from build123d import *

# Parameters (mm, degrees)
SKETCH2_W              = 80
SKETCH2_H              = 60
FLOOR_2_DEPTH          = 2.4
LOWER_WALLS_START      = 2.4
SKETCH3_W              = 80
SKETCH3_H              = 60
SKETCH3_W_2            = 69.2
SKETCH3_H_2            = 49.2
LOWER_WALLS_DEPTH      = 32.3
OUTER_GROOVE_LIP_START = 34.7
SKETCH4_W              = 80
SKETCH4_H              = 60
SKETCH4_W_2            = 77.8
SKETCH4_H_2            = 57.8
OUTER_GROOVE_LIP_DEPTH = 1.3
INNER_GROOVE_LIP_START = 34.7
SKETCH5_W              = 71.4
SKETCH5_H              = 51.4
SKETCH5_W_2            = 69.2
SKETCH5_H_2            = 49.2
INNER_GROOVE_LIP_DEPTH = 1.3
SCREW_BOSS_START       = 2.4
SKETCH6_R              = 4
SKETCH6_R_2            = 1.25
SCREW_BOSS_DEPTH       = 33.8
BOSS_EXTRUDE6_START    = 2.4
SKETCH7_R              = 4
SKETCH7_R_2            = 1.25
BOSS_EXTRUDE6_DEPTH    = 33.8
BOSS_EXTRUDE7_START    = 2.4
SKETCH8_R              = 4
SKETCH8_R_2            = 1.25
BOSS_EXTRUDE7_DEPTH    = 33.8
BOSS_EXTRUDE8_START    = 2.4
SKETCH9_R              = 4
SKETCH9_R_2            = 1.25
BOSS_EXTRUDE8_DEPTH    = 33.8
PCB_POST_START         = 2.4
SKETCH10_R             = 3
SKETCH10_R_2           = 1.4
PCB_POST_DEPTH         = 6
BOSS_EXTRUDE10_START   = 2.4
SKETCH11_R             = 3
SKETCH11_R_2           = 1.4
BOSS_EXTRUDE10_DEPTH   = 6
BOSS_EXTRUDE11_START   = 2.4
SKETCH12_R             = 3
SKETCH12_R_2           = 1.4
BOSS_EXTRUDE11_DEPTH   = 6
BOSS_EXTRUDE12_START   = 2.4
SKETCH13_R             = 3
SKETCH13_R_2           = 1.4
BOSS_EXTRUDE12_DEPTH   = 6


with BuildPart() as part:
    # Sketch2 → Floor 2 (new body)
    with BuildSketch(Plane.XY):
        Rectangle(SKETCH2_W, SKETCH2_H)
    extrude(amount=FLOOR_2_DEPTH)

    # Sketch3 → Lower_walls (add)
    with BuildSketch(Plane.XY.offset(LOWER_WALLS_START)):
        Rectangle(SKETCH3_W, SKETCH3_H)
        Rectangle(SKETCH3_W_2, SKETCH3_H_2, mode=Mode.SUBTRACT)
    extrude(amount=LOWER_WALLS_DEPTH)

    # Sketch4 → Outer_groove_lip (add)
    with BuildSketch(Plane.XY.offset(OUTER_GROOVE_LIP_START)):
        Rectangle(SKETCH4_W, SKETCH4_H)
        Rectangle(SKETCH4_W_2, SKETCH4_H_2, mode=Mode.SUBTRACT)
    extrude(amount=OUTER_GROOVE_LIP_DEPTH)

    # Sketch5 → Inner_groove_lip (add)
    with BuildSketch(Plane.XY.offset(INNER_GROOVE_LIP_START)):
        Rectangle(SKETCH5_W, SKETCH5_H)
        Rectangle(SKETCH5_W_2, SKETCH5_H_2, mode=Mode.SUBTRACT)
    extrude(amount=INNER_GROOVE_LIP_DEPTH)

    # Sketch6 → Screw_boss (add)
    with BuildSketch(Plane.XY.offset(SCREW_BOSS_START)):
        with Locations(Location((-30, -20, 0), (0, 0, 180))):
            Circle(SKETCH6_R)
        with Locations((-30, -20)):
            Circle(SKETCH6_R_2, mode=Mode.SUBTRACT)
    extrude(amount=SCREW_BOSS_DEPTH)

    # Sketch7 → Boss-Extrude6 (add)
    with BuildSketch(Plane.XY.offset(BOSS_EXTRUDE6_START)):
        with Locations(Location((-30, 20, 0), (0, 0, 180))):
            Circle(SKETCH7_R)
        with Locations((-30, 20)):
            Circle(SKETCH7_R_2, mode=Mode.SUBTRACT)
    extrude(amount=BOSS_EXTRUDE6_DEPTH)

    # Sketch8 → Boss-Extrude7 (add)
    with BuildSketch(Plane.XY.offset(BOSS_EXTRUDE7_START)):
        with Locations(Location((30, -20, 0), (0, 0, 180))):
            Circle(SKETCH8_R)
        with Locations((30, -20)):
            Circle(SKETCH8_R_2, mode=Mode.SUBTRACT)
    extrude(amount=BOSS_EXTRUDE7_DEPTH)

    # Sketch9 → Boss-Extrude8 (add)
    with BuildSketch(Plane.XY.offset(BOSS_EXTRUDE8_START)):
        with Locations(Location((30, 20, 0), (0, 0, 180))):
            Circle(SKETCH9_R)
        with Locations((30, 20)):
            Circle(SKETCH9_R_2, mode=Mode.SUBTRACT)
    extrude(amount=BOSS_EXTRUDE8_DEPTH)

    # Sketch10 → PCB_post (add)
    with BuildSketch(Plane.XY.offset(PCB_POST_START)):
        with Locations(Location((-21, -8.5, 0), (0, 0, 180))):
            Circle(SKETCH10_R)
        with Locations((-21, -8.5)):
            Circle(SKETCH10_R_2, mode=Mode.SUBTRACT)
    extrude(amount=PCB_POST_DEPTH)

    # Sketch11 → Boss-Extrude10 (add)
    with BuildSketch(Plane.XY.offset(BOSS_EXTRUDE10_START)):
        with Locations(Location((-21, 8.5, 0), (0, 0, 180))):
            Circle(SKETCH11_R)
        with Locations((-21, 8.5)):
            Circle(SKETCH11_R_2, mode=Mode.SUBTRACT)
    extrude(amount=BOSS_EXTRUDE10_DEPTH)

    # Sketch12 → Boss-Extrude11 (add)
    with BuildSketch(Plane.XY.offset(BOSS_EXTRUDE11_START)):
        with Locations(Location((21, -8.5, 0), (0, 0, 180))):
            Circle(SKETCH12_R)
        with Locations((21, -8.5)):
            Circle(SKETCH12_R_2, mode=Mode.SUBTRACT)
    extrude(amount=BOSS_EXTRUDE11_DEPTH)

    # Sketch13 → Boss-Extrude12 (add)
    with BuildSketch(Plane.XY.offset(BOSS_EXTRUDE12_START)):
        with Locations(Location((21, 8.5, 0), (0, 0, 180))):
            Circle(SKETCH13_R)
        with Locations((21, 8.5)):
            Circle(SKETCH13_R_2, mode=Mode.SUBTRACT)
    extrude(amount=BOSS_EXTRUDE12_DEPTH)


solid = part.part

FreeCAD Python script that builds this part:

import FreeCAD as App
import Part
import Sketcher

doc = App.newDocument("Part")
body = doc.addObject("PartDesign::Body", "Body")

# Sketch on XY plane
sketch1 = body.newObject("Sketcher::SketchObject", "Sketch")
sketch1.AttachmentSupport = (doc.getObject("XY_Plane"), [""])
sketch1.MapMode = "FlatFace"
sketch1.addGeometry([
    Part.LineSegment(App.Vector(-40, 30, 0), App.Vector(-40, -30, 0)),
    Part.LineSegment(App.Vector(-40, -30, 0), App.Vector(40, -30, 0)),
    Part.LineSegment(App.Vector(40, -30, 0), App.Vector(40, 30, 0)),
    Part.LineSegment(App.Vector(40, 30, 0), App.Vector(-40, 30, 0)),
], False)
sketch1.addConstraint([
    Sketcher.Constraint("Coincident", 0, 2, 1, 1),
    Sketcher.Constraint("Coincident", 1, 2, 2, 1),
    Sketcher.Constraint("Coincident", 2, 2, 3, 1),
    Sketcher.Constraint("Coincident", 3, 2, 0, 1),
    Sketcher.Constraint("Vertical", 0),
    Sketcher.Constraint("Horizontal", 1),
    Sketcher.Constraint("Vertical", 2),
    Sketcher.Constraint("Horizontal", 3),
    Sketcher.Constraint("Symmetric", 0, 2, 2, 2, -1, 1),
    Sketcher.Constraint("DistanceX", 1, 1, 1, 2, 80.0),
    Sketcher.Constraint("DistanceY", 0, 2, 0, 1, 60.0),
])
pad1 = body.newObject("PartDesign::Pad", "Pad")
pad1.Profile = sketch1
pad1.Length = 2.4

# Sketch on XY plane
sketch2 = body.newObject("Sketcher::SketchObject", "Sketch001")
sketch2.AttachmentSupport = (doc.getObject("XY_Plane"), [""])
sketch2.MapMode = "FlatFace"
sketch2.AttachmentOffset = App.Placement(App.Vector(0, 0, 2.4), App.Rotation())
sketch2.addGeometry([
    Part.LineSegment(App.Vector(-40, 30, 0), App.Vector(-40, -30, 0)),  # 0
    Part.LineSegment(App.Vector(-40, -30, 0), App.Vector(40, -30, 0)),  # 1
    Part.LineSegment(App.Vector(40, -30, 0), App.Vector(40, 30, 0)),  # 2
    Part.LineSegment(App.Vector(40, 30, 0), App.Vector(-40, 30, 0)),  # 3
    Part.LineSegment(App.Vector(35, -25, 0), App.Vector(-35, -25, 0)),  # 4
    Part.LineSegment(App.Vector(-35, -25, 0), App.Vector(-35, 25, 0)),  # 5
    Part.LineSegment(App.Vector(-35, 25, 0), App.Vector(35, 25, 0)),  # 6
    Part.LineSegment(App.Vector(35, 25, 0), App.Vector(35, -25, 0)),  # 7
], False)
sketch2.addConstraint([
    Sketcher.Constraint("Coincident", 0, 2, 1, 1),
    Sketcher.Constraint("Coincident", 1, 2, 2, 1),
    Sketcher.Constraint("Coincident", 2, 2, 3, 1),
    Sketcher.Constraint("Coincident", 3, 2, 0, 1),
    Sketcher.Constraint("Coincident", 4, 2, 5, 1),
    Sketcher.Constraint("Coincident", 5, 2, 6, 1),
    Sketcher.Constraint("Coincident", 6, 2, 7, 1),
    Sketcher.Constraint("Coincident", 7, 2, 4, 1),
    Sketcher.Constraint("Vertical", 0),
    Sketcher.Constraint("Horizontal", 1),
    Sketcher.Constraint("Vertical", 2),
    Sketcher.Constraint("Horizontal", 3),
    Sketcher.Constraint("Horizontal", 4),
    Sketcher.Constraint("Vertical", 5),
    Sketcher.Constraint("Horizontal", 6),
    Sketcher.Constraint("Vertical", 7),
    Sketcher.Constraint("Symmetric", 0, 2, 2, 2, -1, 1),
    Sketcher.Constraint("Symmetric", 4, 2, 6, 2, -1, 1),
    Sketcher.Constraint("DistanceX", 1, 1, 1, 2, 80.0),
    Sketcher.Constraint("DistanceY", 0, 2, 0, 1, 60.0),
    Sketcher.Constraint("DistanceX", 4, 2, 4, 1, 69.2),
    Sketcher.Constraint("DistanceY", 5, 1, 5, 2, 49.2),
])
pad2 = body.newObject("PartDesign::Pad", "Pad001")
pad2.Profile = sketch2
pad2.Length = 32.3

# Sketch on XY plane
sketch3 = body.newObject("Sketcher::SketchObject", "Sketch002")
sketch3.AttachmentSupport = (doc.getObject("XY_Plane"), [""])
sketch3.MapMode = "FlatFace"
sketch3.AttachmentOffset = App.Placement(App.Vector(0, 0, 34.7), App.Rotation())
sketch3.addGeometry([
    Part.LineSegment(App.Vector(-40, 30, 0), App.Vector(-40, -30, 0)),  # 0
    Part.LineSegment(App.Vector(-40, -30, 0), App.Vector(40, -30, 0)),  # 1
    Part.LineSegment(App.Vector(40, -30, 0), App.Vector(40, 30, 0)),  # 2
    Part.LineSegment(App.Vector(40, 30, 0), App.Vector(-40, 30, 0)),  # 3
    Part.LineSegment(App.Vector(39, -29, 0), App.Vector(-39, -29, 0)),  # 4
    Part.LineSegment(App.Vector(-39, -29, 0), App.Vector(-39, 29, 0)),  # 5
    Part.LineSegment(App.Vector(-39, 29, 0), App.Vector(39, 29, 0)),  # 6
    Part.LineSegment(App.Vector(39, 29, 0), App.Vector(39, -29, 0)),  # 7
], False)
sketch3.addConstraint([
    Sketcher.Constraint("Coincident", 0, 2, 1, 1),
    Sketcher.Constraint("Coincident", 1, 2, 2, 1),
    Sketcher.Constraint("Coincident", 2, 2, 3, 1),
    Sketcher.Constraint("Coincident", 3, 2, 0, 1),
    Sketcher.Constraint("Coincident", 4, 2, 5, 1),
    Sketcher.Constraint("Coincident", 5, 2, 6, 1),
    Sketcher.Constraint("Coincident", 6, 2, 7, 1),
    Sketcher.Constraint("Coincident", 7, 2, 4, 1),
    Sketcher.Constraint("Vertical", 0),
    Sketcher.Constraint("Horizontal", 1),
    Sketcher.Constraint("Vertical", 2),
    Sketcher.Constraint("Horizontal", 3),
    Sketcher.Constraint("Horizontal", 4),
    Sketcher.Constraint("Vertical", 5),
    Sketcher.Constraint("Horizontal", 6),
    Sketcher.Constraint("Vertical", 7),
    Sketcher.Constraint("Symmetric", 0, 2, 2, 2, -1, 1),
    Sketcher.Constraint("Symmetric", 4, 2, 6, 2, -1, 1),
    Sketcher.Constraint("DistanceX", 1, 1, 1, 2, 80.0),
    Sketcher.Constraint("DistanceY", 0, 2, 0, 1, 60.0),
    Sketcher.Constraint("DistanceX", 4, 2, 4, 1, 77.8),
    Sketcher.Constraint("DistanceY", 5, 1, 5, 2, 57.8),
])
pad3 = body.newObject("PartDesign::Pad", "Pad002")
pad3.Profile = sketch3
pad3.Length = 1.3

# Sketch on XY plane
sketch4 = body.newObject("Sketcher::SketchObject", "Sketch003")
sketch4.AttachmentSupport = (doc.getObject("XY_Plane"), [""])
sketch4.MapMode = "FlatFace"
sketch4.AttachmentOffset = App.Placement(App.Vector(0, 0, 34.7), App.Rotation())
sketch4.addGeometry([
    Part.LineSegment(App.Vector(-36, 26, 0), App.Vector(-36, -26, 0)),  # 0
    Part.LineSegment(App.Vector(-36, -26, 0), App.Vector(36, -26, 0)),  # 1
    Part.LineSegment(App.Vector(36, -26, 0), App.Vector(36, 26, 0)),  # 2
    Part.LineSegment(App.Vector(36, 26, 0), App.Vector(-36, 26, 0)),  # 3
    Part.LineSegment(App.Vector(35, -25, 0), App.Vector(-35, -25, 0)),  # 4
    Part.LineSegment(App.Vector(-35, -25, 0), App.Vector(-35, 25, 0)),  # 5
    Part.LineSegment(App.Vector(-35, 25, 0), App.Vector(35, 25, 0)),  # 6
    Part.LineSegment(App.Vector(35, 25, 0), App.Vector(35, -25, 0)),  # 7
], False)
sketch4.addConstraint([
    Sketcher.Constraint("Coincident", 0, 2, 1, 1),
    Sketcher.Constraint("Coincident", 1, 2, 2, 1),
    Sketcher.Constraint("Coincident", 2, 2, 3, 1),
    Sketcher.Constraint("Coincident", 3, 2, 0, 1),
    Sketcher.Constraint("Coincident", 4, 2, 5, 1),
    Sketcher.Constraint("Coincident", 5, 2, 6, 1),
    Sketcher.Constraint("Coincident", 6, 2, 7, 1),
    Sketcher.Constraint("Coincident", 7, 2, 4, 1),
    Sketcher.Constraint("Vertical", 0),
    Sketcher.Constraint("Horizontal", 1),
    Sketcher.Constraint("Vertical", 2),
    Sketcher.Constraint("Horizontal", 3),
    Sketcher.Constraint("Horizontal", 4),
    Sketcher.Constraint("Vertical", 5),
    Sketcher.Constraint("Horizontal", 6),
    Sketcher.Constraint("Vertical", 7),
    Sketcher.Constraint("Symmetric", 0, 2, 2, 2, -1, 1),
    Sketcher.Constraint("Symmetric", 4, 2, 6, 2, -1, 1),
    Sketcher.Constraint("DistanceX", 1, 1, 1, 2, 71.4),
    Sketcher.Constraint("DistanceX", 4, 2, 4, 1, 69.2),
    Sketcher.Constraint("DistanceY", 0, 2, 0, 1, 51.4),
    Sketcher.Constraint("DistanceY", 5, 1, 5, 2, 49.2),
])
pad4 = body.newObject("PartDesign::Pad", "Pad003")
pad4.Profile = sketch4
pad4.Length = 1.3

# Sketch on XY plane
sketch5 = body.newObject("Sketcher::SketchObject", "Sketch004")
sketch5.AttachmentSupport = (doc.getObject("XY_Plane"), [""])
sketch5.MapMode = "FlatFace"
sketch5.AttachmentOffset = App.Placement(App.Vector(0, 0, 2.4), App.Rotation())
sketch5.addGeometry([
    Part.Circle(App.Vector(-30, -20, 0), App.Vector(0, 0, 1), 4),
    Part.Circle(App.Vector(-30, -20, 0), App.Vector(0, 0, 1), 1.2),
], False)
sketch5.addConstraint([
    Sketcher.Constraint("Coincident", 1, 3, 0, 3),
    Sketcher.Constraint("Diameter", 0, 8.0),
    Sketcher.Constraint("Diameter", 1, 2.5),
    Sketcher.Constraint("DistanceX", 0, 3, -1, 1, 30.0),
    Sketcher.Constraint("DistanceY", 0, 3, -1, 1, 20.0),
])
pad5 = body.newObject("PartDesign::Pad", "Pad004")
pad5.Profile = sketch5
pad5.Length = 33.8

# Sketch on XY plane
sketch6 = body.newObject("Sketcher::SketchObject", "Sketch005")
sketch6.AttachmentSupport = (doc.getObject("XY_Plane"), [""])
sketch6.MapMode = "FlatFace"
sketch6.AttachmentOffset = App.Placement(App.Vector(0, 0, 2.4), App.Rotation())
sketch6.addGeometry([
    Part.Circle(App.Vector(-30, 20, 0), App.Vector(0, 0, 1), 4),
    Part.Circle(App.Vector(-30, 20, 0), App.Vector(0, 0, 1), 1.2),
], False)
sketch6.addConstraint([
    Sketcher.Constraint("Coincident", 1, 3, 0, 3),
    Sketcher.Constraint("Diameter", 0, 8.0),
    Sketcher.Constraint("Diameter", 1, 2.5),
    Sketcher.Constraint("DistanceX", 0, 3, -1, 1, 30.0),
    Sketcher.Constraint("DistanceY", -1, 1, 0, 3, 20.0),
])
pad6 = body.newObject("PartDesign::Pad", "Pad005")
pad6.Profile = sketch6
pad6.Length = 33.8

# Sketch on XY plane
sketch7 = body.newObject("Sketcher::SketchObject", "Sketch006")
sketch7.AttachmentSupport = (doc.getObject("XY_Plane"), [""])
sketch7.MapMode = "FlatFace"
sketch7.AttachmentOffset = App.Placement(App.Vector(0, 0, 2.4), App.Rotation())
sketch7.addGeometry([
    Part.Circle(App.Vector(30, -20, 0), App.Vector(0, 0, 1), 4),
    Part.Circle(App.Vector(30, -20, 0), App.Vector(0, 0, 1), 1.2),
], False)
sketch7.addConstraint([
    Sketcher.Constraint("Coincident", 1, 3, 0, 3),
    Sketcher.Constraint("Diameter", 0, 8.0),
    Sketcher.Constraint("Diameter", 1, 2.5),
    Sketcher.Constraint("DistanceX", -1, 1, 0, 3, 30.0),
    Sketcher.Constraint("DistanceY", 0, 3, -1, 1, 20.0),
])
pad7 = body.newObject("PartDesign::Pad", "Pad006")
pad7.Profile = sketch7
pad7.Length = 33.8

# Sketch on XY plane
sketch8 = body.newObject("Sketcher::SketchObject", "Sketch007")
sketch8.AttachmentSupport = (doc.getObject("XY_Plane"), [""])
sketch8.MapMode = "FlatFace"
sketch8.AttachmentOffset = App.Placement(App.Vector(0, 0, 2.4), App.Rotation())
sketch8.addGeometry([
    Part.Circle(App.Vector(30, 20, 0), App.Vector(0, 0, 1), 4),
    Part.Circle(App.Vector(30, 20, 0), App.Vector(0, 0, 1), 1.2),
], False)
sketch8.addConstraint([
    Sketcher.Constraint("Coincident", 1, 3, 0, 3),
    Sketcher.Constraint("Diameter", 0, 8.0),
    Sketcher.Constraint("Diameter", 1, 2.5),
    Sketcher.Constraint("DistanceX", -1, 1, 0, 3, 30.0),
    Sketcher.Constraint("DistanceY", -1, 1, 0, 3, 20.0),
])
pad8 = body.newObject("PartDesign::Pad", "Pad007")
pad8.Profile = sketch8
pad8.Length = 33.8

# Sketch on XY plane
sketch9 = body.newObject("Sketcher::SketchObject", "Sketch008")
sketch9.AttachmentSupport = (doc.getObject("XY_Plane"), [""])
sketch9.MapMode = "FlatFace"
sketch9.AttachmentOffset = App.Placement(App.Vector(0, 0, 2.4), App.Rotation())
sketch9.addGeometry([
    Part.Circle(App.Vector(-21, -8.5, 0), App.Vector(0, 0, 1), 3),
    Part.Circle(App.Vector(-21, -8.5, 0), App.Vector(0, 0, 1), 1.4),
], False)
sketch9.addConstraint([
    Sketcher.Constraint("Coincident", 1, 3, 0, 3),
    Sketcher.Constraint("Diameter", 0, 6.0),
    Sketcher.Constraint("Diameter", 1, 2.8),
    Sketcher.Constraint("DistanceX", 0, 3, -1, 1, 21.0),
    Sketcher.Constraint("DistanceY", 0, 3, -1, 1, 8.5),
])
pad9 = body.newObject("PartDesign::Pad", "Pad008")
pad9.Profile = sketch9
pad9.Length = 6

# Sketch on XY plane
sketch10 = body.newObject("Sketcher::SketchObject", "Sketch009")
sketch10.AttachmentSupport = (doc.getObject("XY_Plane"), [""])
sketch10.MapMode = "FlatFace"
sketch10.AttachmentOffset = App.Placement(App.Vector(0, 0, 2.4), App.Rotation())
sketch10.addGeometry([
    Part.Circle(App.Vector(-21, 8.5, 0), App.Vector(0, 0, 1), 3),
    Part.Circle(App.Vector(-21, 8.5, 0), App.Vector(0, 0, 1), 1.4),
], False)
sketch10.addConstraint([
    Sketcher.Constraint("Coincident", 1, 3, 0, 3),
    Sketcher.Constraint("Diameter", 0, 6.0),
    Sketcher.Constraint("Diameter", 1, 2.8),
    Sketcher.Constraint("DistanceX", 0, 3, -1, 1, 21.0),
    Sketcher.Constraint("DistanceY", -1, 1, 0, 3, 8.5),
])
pad10 = body.newObject("PartDesign::Pad", "Pad009")
pad10.Profile = sketch10
pad10.Length = 6

# Sketch on XY plane
sketch11 = body.newObject("Sketcher::SketchObject", "Sketch010")
sketch11.AttachmentSupport = (doc.getObject("XY_Plane"), [""])
sketch11.MapMode = "FlatFace"
sketch11.AttachmentOffset = App.Placement(App.Vector(0, 0, 2.4), App.Rotation())
sketch11.addGeometry([
    Part.Circle(App.Vector(21, -8.5, 0), App.Vector(0, 0, 1), 3),
    Part.Circle(App.Vector(21, -8.5, 0), App.Vector(0, 0, 1), 1.4),
], False)
sketch11.addConstraint([
    Sketcher.Constraint("Coincident", 1, 3, 0, 3),
    Sketcher.Constraint("Diameter", 0, 6.0),
    Sketcher.Constraint("Diameter", 1, 2.8),
    Sketcher.Constraint("DistanceX", -1, 1, 0, 3, 21.0),
    Sketcher.Constraint("DistanceY", 0, 3, -1, 1, 8.5),
])
pad11 = body.newObject("PartDesign::Pad", "Pad010")
pad11.Profile = sketch11
pad11.Length = 6

# Sketch on XY plane
sketch12 = body.newObject("Sketcher::SketchObject", "Sketch011")
sketch12.AttachmentSupport = (doc.getObject("XY_Plane"), [""])
sketch12.MapMode = "FlatFace"
sketch12.AttachmentOffset = App.Placement(App.Vector(0, 0, 2.4), App.Rotation())
sketch12.addGeometry([
    Part.Circle(App.Vector(21, 8.5, 0), App.Vector(0, 0, 1), 3),
    Part.Circle(App.Vector(21, 8.5, 0), App.Vector(0, 0, 1), 1.4),
], False)
sketch12.addConstraint([
    Sketcher.Constraint("Coincident", 1, 3, 0, 3),
    Sketcher.Constraint("Diameter", 0, 6.0),
    Sketcher.Constraint("Diameter", 1, 2.8),
    Sketcher.Constraint("DistanceX", -1, 1, 0, 3, 21.0),
    Sketcher.Constraint("DistanceY", -1, 1, 0, 3, 8.5),
])
pad12 = body.newObject("PartDesign::Pad", "Pad011")
pad12.Profile = sketch12
pad12.Length = 6

doc.recompute()
